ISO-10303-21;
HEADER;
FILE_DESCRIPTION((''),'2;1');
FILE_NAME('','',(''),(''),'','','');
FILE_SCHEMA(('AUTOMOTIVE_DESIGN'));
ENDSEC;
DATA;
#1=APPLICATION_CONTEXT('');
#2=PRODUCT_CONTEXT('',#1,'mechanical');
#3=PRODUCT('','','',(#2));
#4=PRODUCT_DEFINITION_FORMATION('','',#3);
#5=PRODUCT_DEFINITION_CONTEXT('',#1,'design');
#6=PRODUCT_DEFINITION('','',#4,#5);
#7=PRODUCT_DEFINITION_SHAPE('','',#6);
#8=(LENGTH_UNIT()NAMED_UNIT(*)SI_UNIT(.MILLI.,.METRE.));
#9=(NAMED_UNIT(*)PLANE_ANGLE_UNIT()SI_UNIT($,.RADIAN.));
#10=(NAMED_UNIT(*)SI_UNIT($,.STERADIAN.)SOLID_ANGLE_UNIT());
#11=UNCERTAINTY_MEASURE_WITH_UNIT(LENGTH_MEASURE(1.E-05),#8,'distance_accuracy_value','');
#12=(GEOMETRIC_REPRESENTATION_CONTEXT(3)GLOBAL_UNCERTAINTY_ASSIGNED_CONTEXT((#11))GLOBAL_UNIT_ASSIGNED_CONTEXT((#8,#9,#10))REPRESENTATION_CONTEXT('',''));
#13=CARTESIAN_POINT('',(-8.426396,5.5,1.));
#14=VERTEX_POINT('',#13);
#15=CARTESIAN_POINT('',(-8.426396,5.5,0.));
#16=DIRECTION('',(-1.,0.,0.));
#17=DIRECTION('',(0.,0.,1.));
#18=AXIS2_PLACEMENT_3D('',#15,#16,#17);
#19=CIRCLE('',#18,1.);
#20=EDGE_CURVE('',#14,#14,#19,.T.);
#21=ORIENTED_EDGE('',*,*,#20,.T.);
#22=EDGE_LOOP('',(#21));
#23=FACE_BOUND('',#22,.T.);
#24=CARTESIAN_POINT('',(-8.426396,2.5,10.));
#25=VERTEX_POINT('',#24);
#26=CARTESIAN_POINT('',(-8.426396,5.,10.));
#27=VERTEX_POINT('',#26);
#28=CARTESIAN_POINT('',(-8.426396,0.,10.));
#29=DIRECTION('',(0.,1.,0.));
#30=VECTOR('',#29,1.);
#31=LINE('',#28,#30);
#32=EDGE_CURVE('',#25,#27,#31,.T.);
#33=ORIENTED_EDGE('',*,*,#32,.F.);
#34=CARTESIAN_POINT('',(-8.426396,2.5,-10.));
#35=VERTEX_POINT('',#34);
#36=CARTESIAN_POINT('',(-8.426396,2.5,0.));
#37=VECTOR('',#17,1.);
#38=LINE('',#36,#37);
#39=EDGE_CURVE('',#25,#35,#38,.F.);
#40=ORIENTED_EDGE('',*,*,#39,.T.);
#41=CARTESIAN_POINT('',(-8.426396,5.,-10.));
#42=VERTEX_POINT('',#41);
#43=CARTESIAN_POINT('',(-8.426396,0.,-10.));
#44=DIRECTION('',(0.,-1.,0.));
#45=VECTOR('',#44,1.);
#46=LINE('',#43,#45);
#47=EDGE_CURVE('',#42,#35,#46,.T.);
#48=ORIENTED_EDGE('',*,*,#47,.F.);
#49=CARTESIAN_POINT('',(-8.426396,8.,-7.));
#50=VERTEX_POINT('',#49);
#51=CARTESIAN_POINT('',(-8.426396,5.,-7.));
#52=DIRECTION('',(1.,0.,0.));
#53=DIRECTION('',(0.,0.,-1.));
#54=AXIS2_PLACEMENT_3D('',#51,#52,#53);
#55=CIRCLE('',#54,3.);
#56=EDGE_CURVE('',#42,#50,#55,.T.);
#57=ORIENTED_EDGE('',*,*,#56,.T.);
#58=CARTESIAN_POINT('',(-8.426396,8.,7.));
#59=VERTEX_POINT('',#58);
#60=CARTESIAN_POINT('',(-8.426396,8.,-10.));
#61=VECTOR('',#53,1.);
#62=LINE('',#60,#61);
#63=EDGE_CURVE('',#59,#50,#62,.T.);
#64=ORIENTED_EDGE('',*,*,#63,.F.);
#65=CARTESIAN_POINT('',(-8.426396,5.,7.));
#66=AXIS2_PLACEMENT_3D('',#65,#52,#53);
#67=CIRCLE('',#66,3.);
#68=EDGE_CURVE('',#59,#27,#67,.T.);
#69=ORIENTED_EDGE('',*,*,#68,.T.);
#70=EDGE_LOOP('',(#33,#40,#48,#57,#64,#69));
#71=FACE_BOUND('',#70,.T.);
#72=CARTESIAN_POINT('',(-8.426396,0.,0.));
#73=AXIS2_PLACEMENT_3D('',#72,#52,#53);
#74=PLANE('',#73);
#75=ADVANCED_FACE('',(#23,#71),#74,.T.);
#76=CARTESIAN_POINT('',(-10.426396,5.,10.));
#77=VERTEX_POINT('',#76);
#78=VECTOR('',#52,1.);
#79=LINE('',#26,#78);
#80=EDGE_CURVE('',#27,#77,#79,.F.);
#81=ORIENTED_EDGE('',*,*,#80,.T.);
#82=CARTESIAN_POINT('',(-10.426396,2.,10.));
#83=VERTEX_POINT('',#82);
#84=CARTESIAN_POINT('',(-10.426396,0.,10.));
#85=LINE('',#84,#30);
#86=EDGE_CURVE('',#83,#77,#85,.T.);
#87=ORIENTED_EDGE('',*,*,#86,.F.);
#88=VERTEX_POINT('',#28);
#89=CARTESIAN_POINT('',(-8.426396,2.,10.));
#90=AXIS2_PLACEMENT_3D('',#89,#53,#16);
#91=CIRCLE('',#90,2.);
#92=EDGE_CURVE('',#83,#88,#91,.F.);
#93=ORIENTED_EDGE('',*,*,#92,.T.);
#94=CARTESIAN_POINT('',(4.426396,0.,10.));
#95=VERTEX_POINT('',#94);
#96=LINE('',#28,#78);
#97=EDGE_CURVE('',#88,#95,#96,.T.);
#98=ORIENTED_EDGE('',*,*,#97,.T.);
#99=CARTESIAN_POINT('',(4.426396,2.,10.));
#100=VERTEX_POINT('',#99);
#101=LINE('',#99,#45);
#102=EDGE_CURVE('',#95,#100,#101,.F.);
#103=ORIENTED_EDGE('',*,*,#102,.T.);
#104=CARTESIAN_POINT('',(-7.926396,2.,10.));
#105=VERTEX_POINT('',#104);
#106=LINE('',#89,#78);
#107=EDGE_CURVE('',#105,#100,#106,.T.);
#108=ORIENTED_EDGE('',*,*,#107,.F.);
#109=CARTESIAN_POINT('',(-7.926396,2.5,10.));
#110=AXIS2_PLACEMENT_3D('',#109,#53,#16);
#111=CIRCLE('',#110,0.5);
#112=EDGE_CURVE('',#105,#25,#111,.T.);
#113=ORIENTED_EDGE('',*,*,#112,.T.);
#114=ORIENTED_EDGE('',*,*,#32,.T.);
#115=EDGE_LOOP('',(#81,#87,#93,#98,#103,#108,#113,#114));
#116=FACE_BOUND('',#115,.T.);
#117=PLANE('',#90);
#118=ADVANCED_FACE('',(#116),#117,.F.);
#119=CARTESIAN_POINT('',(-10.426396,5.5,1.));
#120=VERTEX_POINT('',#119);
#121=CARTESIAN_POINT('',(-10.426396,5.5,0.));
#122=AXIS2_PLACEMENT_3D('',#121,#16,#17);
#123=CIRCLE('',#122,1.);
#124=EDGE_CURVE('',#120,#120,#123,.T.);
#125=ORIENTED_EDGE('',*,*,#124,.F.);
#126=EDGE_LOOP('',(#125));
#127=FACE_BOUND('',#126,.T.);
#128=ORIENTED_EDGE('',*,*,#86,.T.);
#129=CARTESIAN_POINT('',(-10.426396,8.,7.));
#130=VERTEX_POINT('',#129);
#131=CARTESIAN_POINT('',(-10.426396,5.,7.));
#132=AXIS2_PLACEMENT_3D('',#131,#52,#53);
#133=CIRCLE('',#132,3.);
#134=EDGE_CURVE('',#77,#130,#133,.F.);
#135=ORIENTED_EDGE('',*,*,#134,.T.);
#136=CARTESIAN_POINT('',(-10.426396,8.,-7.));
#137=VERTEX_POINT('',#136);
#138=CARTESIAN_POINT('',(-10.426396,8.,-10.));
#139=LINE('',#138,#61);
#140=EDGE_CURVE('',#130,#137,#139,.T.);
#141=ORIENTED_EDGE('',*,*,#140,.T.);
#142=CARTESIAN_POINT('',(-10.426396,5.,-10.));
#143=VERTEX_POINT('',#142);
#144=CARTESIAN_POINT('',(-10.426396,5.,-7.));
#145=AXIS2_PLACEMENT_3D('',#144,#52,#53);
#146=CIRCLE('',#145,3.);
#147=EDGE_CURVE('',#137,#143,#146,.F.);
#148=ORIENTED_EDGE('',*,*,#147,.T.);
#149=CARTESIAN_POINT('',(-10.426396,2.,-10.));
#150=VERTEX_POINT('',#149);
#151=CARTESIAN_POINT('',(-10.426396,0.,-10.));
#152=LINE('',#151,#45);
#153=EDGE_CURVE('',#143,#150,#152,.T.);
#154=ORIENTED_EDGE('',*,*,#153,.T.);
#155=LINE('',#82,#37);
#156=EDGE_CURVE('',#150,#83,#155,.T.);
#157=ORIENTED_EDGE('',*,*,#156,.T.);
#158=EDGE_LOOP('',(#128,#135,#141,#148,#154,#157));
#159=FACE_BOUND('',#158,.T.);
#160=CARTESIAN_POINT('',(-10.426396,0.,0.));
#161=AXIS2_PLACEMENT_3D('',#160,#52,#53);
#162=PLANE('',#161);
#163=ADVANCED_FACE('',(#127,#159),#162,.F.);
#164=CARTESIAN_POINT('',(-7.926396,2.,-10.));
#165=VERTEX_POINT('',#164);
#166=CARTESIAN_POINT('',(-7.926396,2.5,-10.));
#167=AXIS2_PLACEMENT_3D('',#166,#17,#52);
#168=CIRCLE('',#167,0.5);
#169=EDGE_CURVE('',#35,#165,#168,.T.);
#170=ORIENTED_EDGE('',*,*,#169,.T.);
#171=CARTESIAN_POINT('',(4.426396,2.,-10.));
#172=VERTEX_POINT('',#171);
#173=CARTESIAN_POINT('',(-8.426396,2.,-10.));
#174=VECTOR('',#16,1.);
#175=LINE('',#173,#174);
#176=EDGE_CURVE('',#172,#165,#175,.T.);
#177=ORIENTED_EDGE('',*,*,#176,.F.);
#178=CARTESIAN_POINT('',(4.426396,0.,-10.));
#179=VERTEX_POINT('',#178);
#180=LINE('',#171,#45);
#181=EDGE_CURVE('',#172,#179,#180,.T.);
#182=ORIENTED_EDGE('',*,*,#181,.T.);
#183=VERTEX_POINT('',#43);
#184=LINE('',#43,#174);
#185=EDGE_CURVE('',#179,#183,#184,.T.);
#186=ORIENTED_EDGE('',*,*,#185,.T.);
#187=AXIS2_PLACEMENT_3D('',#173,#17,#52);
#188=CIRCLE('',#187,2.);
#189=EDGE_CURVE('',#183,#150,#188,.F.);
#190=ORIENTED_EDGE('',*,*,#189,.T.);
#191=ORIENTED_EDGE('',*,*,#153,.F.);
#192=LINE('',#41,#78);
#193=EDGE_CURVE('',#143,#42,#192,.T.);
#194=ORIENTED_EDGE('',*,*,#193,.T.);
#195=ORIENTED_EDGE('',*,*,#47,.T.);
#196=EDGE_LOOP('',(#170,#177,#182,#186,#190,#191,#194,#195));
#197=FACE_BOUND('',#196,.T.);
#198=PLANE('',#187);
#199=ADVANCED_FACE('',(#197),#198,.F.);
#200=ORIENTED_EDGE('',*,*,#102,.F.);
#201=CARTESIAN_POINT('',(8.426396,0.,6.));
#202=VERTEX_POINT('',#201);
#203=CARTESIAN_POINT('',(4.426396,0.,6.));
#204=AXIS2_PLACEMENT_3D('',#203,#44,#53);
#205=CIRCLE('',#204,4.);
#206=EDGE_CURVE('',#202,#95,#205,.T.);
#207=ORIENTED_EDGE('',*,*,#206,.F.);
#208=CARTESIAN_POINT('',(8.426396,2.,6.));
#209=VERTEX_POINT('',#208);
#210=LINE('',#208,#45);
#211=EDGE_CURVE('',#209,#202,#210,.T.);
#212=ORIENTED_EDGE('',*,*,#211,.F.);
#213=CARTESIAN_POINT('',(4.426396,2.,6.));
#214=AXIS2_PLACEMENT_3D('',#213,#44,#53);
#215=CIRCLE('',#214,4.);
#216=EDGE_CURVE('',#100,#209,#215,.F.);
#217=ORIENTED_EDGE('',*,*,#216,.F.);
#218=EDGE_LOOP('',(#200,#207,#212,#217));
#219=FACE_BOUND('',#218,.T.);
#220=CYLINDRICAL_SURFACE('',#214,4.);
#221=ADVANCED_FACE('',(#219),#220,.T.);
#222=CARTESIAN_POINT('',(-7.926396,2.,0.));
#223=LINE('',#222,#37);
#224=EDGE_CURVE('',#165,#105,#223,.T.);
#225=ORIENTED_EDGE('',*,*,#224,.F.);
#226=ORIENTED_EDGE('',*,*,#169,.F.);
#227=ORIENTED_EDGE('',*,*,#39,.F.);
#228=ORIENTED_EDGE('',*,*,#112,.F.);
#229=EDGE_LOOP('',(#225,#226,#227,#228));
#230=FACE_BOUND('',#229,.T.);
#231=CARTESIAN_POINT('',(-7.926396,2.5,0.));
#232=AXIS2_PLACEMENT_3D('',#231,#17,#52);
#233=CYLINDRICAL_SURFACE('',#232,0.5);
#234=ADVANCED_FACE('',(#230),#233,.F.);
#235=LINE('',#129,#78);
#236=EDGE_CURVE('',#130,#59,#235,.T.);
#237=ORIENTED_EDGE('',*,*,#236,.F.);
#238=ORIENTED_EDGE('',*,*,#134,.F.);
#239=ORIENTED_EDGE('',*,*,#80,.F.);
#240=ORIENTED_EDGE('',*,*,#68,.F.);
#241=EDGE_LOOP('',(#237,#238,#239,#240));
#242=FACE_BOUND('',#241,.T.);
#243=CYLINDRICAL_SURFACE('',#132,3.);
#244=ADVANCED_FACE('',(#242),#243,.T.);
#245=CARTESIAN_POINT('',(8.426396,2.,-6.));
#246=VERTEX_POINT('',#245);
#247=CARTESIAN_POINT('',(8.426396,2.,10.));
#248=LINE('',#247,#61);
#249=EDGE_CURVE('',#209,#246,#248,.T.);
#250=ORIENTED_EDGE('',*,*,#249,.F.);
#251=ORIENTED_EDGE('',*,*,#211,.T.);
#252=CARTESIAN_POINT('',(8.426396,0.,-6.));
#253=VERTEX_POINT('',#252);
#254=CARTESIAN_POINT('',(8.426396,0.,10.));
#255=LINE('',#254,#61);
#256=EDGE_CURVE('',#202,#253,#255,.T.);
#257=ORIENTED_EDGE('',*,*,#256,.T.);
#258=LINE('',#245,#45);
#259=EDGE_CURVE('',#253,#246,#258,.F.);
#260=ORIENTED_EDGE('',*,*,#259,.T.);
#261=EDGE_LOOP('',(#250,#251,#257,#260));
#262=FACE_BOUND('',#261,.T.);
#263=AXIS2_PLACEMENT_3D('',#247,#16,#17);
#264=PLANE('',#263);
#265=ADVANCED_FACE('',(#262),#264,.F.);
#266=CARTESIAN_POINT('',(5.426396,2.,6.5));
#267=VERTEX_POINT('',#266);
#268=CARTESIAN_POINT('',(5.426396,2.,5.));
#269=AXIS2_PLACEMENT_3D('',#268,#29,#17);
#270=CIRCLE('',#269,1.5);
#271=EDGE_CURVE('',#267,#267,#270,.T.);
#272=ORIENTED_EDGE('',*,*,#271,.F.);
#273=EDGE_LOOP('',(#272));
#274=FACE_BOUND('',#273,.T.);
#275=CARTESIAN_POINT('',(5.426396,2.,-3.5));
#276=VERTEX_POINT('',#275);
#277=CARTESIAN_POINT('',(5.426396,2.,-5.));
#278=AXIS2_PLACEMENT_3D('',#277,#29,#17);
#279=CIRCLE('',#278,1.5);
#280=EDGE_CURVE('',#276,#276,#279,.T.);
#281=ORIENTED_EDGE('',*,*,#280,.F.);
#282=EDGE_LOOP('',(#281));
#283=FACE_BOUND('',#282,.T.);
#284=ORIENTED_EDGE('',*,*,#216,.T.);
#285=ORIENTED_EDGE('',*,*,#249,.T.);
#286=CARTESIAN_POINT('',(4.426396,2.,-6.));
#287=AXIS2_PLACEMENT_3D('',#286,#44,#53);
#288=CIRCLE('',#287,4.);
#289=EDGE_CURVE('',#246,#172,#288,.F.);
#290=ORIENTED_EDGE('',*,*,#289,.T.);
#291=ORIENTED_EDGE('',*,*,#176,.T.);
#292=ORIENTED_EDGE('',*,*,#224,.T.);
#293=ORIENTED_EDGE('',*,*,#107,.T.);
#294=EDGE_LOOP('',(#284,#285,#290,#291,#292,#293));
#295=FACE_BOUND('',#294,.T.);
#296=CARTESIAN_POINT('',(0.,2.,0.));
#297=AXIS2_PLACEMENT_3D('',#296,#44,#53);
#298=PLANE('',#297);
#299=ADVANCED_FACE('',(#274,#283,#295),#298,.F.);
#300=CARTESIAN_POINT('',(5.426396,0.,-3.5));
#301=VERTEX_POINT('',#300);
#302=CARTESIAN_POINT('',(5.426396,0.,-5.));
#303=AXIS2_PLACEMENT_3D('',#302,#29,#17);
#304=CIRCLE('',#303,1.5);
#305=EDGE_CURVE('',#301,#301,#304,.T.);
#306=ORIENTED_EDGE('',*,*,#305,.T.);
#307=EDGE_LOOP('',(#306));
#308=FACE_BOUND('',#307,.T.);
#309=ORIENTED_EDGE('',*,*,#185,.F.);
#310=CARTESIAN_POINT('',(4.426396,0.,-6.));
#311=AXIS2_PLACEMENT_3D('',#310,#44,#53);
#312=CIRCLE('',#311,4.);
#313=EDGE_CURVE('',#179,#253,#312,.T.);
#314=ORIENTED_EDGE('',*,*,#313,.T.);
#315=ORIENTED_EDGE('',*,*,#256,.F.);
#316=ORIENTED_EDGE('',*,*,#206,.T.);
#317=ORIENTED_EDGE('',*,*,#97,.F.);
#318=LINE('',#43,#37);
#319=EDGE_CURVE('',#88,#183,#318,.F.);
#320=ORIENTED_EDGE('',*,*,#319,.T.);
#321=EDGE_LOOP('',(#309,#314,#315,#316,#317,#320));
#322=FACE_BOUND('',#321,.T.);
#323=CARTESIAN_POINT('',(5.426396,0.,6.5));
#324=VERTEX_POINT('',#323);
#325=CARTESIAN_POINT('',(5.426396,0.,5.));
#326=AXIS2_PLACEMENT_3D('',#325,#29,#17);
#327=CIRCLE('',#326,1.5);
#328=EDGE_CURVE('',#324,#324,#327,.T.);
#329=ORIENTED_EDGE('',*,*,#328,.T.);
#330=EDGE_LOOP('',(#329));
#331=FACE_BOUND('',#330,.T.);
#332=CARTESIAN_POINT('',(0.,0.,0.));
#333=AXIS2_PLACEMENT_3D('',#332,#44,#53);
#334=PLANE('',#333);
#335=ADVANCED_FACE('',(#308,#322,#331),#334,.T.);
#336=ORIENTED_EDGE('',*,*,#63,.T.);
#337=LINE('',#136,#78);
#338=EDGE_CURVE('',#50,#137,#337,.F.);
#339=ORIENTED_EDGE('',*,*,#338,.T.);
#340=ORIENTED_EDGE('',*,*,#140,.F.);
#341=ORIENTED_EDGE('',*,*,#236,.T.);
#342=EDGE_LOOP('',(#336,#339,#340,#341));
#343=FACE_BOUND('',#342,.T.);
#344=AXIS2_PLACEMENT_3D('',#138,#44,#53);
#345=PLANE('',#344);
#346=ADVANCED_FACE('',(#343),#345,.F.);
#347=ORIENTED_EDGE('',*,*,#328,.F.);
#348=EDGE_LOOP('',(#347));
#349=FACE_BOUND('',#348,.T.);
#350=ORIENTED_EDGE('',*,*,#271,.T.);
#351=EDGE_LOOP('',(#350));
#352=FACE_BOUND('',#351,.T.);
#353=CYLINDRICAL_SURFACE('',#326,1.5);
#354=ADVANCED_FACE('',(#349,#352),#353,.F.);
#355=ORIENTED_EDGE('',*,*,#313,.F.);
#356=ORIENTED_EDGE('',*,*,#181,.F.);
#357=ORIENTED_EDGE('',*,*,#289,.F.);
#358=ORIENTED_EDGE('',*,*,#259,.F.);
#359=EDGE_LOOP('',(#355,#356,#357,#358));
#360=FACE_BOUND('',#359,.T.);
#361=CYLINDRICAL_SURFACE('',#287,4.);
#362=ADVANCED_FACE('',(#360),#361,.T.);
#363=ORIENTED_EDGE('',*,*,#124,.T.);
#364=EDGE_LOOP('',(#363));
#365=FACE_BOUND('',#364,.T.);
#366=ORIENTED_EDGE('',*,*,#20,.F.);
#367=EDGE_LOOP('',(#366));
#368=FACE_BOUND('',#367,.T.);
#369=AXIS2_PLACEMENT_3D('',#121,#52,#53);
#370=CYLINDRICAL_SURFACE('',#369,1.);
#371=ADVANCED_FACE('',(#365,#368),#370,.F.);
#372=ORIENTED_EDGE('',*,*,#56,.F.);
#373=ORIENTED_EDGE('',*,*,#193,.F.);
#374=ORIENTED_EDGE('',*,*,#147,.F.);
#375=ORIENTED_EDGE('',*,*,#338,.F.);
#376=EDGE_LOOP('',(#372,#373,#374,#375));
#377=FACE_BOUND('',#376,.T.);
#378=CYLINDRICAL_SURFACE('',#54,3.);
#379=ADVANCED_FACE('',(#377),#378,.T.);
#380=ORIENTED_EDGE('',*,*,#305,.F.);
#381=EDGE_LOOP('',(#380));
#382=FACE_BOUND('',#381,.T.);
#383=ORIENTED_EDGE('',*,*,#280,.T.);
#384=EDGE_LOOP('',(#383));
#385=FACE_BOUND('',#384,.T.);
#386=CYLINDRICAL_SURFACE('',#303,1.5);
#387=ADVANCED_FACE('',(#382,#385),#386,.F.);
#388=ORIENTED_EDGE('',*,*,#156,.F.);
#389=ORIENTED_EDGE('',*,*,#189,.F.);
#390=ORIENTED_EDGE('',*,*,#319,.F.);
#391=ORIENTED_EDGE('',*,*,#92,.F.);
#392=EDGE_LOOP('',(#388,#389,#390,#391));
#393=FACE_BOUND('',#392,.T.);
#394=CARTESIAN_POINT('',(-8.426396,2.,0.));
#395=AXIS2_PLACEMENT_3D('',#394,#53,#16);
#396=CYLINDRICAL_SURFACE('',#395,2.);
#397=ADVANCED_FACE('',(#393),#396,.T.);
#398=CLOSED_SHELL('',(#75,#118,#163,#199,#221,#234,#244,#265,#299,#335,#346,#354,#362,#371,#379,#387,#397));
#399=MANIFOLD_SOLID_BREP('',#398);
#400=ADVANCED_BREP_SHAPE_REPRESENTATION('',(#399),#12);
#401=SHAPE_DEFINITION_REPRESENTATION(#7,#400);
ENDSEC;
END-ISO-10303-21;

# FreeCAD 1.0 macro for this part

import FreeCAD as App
import Part
import Sketcher

V = App.Vector
Q = App.Units.Quantity


def edges_at(feature, points):
    """Names of the edges that pass closest to the given points."""
    edges = feature.Shape.Edges
    near = lambda p: min(range(len(edges)), key=lambda i: edges[i].distToShape(Part.Vertex(*p))[0])
    return sorted({f"Edge{near(p) + 1}" for p in points})

doc = App.newDocument("Part")
body = doc.addObject("PartDesign::Body", "Body")

# Sketch on XZ plane
sketch1 = body.newObject("Sketcher::SketchObject", "Sketch")
sketch1.AttachmentSupport = (doc.getObject("XZ_Plane"), [""])
sketch1.MapMode = "FlatFace"
sketch1.addGeometry([
    Part.LineSegment(V(-8.426396, -10, 0), V(-8.426396, 10, 0)),
    Part.LineSegment(V(-8.426396, 10, 0), V(8.426396, 10, 0)),
    Part.LineSegment(V(8.426396, 10, 0), V(8.426396, -10, 0)),
    Part.LineSegment(V(8.426396, -10, 0), V(-8.426396, -10, 0)),
], False)
sketch1.addConstraint([
    Sketcher.Constraint("Coincident", 0, 2, 1, 1),
    Sketcher.Constraint("Coincident", 1, 2, 2, 1),
    Sketcher.Constraint("Coincident", 2, 2, 3, 1),
    Sketcher.Constraint("Coincident", 3, 2, 0, 1),
    Sketcher.Constraint("Vertical", 0),
    Sketcher.Constraint("Horizontal", 1),
    Sketcher.Constraint("Vertical", 2),
    Sketcher.Constraint("Horizontal", 3),
    Sketcher.Constraint("Symmetric", 0, 2, 2, 2, -1, 1),
    Sketcher.Constraint("DistanceY", 0, 1, 0, 2, Q("20 mm")),
    Sketcher.Constraint("DistanceX", 1, 1, 1, 2, Q("16.852792 mm")),
])
pad1 = body.newObject("PartDesign::Pad", "Pad")
pad1.Profile = sketch1
pad1.Length = 2
pad1.Reversed = True
doc.recompute()

fillet = body.newObject("PartDesign::Fillet", "Fillet")
fillet.Base = (pad1, edges_at(pad1, [(8.426, 1, 10), (8.426, 1, -10)]))
fillet.Radius = 4

# Sketch on YZ plane
sketch2 = body.newObject("Sketcher::SketchObject", "Sketch001")
sketch2.AttachmentSupport = (doc.getObject("YZ_Plane"), [""])
sketch2.MapMode = "FlatFace"
sketch2.AttachmentOffset = App.Placement(V(0, 0, -8.426396), App.Rotation())
sketch2.addGeometry([
    Part.LineSegment(V(8, -10, 0), V(0, -10, 0)),  # 0
    Part.LineSegment(V(0, -10, 0), V(0, 10, 0)),  # 1
    Part.LineSegment(V(0, 10, 0), V(8, 10, 0)),  # 2
    Part.LineSegment(V(8, 10, 0), V(8, -10, 0)),  # 3
    Part.Circle(V(5.5, 0, 0), V(0, 0, 1), 1),  # 4
], False)
sketch2.addConstraint([
    Sketcher.Constraint("Coincident", 0, 2, 1, 1),
    Sketcher.Constraint("Coincident", 1, 2, 2, 1),
    Sketcher.Constraint("Coincident", 2, 2, 3, 1),
    Sketcher.Constraint("Coincident", 3, 2, 0, 1),
    Sketcher.Constraint("Horizontal", 0),
    Sketcher.Constraint("Vertical", 1),
    Sketcher.Constraint("Horizontal", 2),
    Sketcher.Constraint("Vertical", 3),
    Sketcher.Constraint("Symmetric", 0, 2, 1, 2, -1, 1),
    Sketcher.Constraint("PointOnObject", 4, 3, -1),
    Sketcher.Constraint("Diameter", 4, Q("2 mm")),
    Sketcher.Constraint("DistanceX", 0, 2, 0, 1, Q("8 mm")),
    Sketcher.Constraint("DistanceY", 1, 1, 1, 2, Q("20 mm")),
    Sketcher.Constraint("DistanceX", -1, 1, 4, 3, Q("5.5 mm")),
])
pad2 = body.newObject("PartDesign::Pad", "Pad001")
pad2.Profile = sketch2
pad2.Length = 2
pad2.Reversed = True
doc.recompute()

fillet2 = body.newObject("PartDesign::Fillet", "Fillet001")
fillet2.Base = (pad2, edges_at(pad2, [(-9.426, 8, 10)]))
fillet2.Radius = 3
doc.recompute()

fillet3 = body.newObject("PartDesign::Fillet", "Fillet002")
fillet3.Base = (fillet2, edges_at(fillet2, [(-9.426, 8, -10)]))
fillet3.Radius = 3
doc.recompute()

fillet4 = body.newObject("PartDesign::Fillet", "Fillet003")
fillet4.Base = (fillet3, edges_at(fillet3, [(-10.426, 0, 0)]))
fillet4.Radius = 2
doc.recompute()

fillet5 = body.newObject("PartDesign::Fillet", "Fillet004")
fillet5.Base = (fillet4, edges_at(fillet4, [(-8.426, 2, 0)]))
fillet5.Radius = 0.5

# Sketch on XZ plane
sketch3 = body.newObject("Sketcher::SketchObject", "Sketch002")
sketch3.AttachmentSupport = (doc.getObject("XZ_Plane"), [""])
sketch3.MapMode = "FlatFace"
sketch3.AttachmentOffset = App.Placement(V(0, 0, -2), App.Rotation())
sketch3.addGeometry([
    Part.Circle(V(5.426396, -5, 0), V(0, 0, 1), 1.5),
    Part.Circle(V(5.426396, 5, 0), V(0, 0, 1), 1.5),
], False)
sketch3.addConstraint([
    Sketcher.Constraint("Equal", 0, 1),
    Sketcher.Constraint("Symmetric", 0, 3, 1, 3, -1),
    Sketcher.Constraint("Diameter", 0, Q("3 mm")),
    Sketcher.Constraint("DistanceY", 0, 3, -1, 1, Q("5 mm")),
    Sketcher.Constraint("DistanceX", -1, 1, 0, 3, Q("5.426396 mm")),
])
pocket1 = body.newObject("PartDesign::Pocket", "Pocket")
pocket1.Profile = sketch3
pocket1.Type = "ThroughAll"
pocket1.Reversed = True

doc.recompute()
